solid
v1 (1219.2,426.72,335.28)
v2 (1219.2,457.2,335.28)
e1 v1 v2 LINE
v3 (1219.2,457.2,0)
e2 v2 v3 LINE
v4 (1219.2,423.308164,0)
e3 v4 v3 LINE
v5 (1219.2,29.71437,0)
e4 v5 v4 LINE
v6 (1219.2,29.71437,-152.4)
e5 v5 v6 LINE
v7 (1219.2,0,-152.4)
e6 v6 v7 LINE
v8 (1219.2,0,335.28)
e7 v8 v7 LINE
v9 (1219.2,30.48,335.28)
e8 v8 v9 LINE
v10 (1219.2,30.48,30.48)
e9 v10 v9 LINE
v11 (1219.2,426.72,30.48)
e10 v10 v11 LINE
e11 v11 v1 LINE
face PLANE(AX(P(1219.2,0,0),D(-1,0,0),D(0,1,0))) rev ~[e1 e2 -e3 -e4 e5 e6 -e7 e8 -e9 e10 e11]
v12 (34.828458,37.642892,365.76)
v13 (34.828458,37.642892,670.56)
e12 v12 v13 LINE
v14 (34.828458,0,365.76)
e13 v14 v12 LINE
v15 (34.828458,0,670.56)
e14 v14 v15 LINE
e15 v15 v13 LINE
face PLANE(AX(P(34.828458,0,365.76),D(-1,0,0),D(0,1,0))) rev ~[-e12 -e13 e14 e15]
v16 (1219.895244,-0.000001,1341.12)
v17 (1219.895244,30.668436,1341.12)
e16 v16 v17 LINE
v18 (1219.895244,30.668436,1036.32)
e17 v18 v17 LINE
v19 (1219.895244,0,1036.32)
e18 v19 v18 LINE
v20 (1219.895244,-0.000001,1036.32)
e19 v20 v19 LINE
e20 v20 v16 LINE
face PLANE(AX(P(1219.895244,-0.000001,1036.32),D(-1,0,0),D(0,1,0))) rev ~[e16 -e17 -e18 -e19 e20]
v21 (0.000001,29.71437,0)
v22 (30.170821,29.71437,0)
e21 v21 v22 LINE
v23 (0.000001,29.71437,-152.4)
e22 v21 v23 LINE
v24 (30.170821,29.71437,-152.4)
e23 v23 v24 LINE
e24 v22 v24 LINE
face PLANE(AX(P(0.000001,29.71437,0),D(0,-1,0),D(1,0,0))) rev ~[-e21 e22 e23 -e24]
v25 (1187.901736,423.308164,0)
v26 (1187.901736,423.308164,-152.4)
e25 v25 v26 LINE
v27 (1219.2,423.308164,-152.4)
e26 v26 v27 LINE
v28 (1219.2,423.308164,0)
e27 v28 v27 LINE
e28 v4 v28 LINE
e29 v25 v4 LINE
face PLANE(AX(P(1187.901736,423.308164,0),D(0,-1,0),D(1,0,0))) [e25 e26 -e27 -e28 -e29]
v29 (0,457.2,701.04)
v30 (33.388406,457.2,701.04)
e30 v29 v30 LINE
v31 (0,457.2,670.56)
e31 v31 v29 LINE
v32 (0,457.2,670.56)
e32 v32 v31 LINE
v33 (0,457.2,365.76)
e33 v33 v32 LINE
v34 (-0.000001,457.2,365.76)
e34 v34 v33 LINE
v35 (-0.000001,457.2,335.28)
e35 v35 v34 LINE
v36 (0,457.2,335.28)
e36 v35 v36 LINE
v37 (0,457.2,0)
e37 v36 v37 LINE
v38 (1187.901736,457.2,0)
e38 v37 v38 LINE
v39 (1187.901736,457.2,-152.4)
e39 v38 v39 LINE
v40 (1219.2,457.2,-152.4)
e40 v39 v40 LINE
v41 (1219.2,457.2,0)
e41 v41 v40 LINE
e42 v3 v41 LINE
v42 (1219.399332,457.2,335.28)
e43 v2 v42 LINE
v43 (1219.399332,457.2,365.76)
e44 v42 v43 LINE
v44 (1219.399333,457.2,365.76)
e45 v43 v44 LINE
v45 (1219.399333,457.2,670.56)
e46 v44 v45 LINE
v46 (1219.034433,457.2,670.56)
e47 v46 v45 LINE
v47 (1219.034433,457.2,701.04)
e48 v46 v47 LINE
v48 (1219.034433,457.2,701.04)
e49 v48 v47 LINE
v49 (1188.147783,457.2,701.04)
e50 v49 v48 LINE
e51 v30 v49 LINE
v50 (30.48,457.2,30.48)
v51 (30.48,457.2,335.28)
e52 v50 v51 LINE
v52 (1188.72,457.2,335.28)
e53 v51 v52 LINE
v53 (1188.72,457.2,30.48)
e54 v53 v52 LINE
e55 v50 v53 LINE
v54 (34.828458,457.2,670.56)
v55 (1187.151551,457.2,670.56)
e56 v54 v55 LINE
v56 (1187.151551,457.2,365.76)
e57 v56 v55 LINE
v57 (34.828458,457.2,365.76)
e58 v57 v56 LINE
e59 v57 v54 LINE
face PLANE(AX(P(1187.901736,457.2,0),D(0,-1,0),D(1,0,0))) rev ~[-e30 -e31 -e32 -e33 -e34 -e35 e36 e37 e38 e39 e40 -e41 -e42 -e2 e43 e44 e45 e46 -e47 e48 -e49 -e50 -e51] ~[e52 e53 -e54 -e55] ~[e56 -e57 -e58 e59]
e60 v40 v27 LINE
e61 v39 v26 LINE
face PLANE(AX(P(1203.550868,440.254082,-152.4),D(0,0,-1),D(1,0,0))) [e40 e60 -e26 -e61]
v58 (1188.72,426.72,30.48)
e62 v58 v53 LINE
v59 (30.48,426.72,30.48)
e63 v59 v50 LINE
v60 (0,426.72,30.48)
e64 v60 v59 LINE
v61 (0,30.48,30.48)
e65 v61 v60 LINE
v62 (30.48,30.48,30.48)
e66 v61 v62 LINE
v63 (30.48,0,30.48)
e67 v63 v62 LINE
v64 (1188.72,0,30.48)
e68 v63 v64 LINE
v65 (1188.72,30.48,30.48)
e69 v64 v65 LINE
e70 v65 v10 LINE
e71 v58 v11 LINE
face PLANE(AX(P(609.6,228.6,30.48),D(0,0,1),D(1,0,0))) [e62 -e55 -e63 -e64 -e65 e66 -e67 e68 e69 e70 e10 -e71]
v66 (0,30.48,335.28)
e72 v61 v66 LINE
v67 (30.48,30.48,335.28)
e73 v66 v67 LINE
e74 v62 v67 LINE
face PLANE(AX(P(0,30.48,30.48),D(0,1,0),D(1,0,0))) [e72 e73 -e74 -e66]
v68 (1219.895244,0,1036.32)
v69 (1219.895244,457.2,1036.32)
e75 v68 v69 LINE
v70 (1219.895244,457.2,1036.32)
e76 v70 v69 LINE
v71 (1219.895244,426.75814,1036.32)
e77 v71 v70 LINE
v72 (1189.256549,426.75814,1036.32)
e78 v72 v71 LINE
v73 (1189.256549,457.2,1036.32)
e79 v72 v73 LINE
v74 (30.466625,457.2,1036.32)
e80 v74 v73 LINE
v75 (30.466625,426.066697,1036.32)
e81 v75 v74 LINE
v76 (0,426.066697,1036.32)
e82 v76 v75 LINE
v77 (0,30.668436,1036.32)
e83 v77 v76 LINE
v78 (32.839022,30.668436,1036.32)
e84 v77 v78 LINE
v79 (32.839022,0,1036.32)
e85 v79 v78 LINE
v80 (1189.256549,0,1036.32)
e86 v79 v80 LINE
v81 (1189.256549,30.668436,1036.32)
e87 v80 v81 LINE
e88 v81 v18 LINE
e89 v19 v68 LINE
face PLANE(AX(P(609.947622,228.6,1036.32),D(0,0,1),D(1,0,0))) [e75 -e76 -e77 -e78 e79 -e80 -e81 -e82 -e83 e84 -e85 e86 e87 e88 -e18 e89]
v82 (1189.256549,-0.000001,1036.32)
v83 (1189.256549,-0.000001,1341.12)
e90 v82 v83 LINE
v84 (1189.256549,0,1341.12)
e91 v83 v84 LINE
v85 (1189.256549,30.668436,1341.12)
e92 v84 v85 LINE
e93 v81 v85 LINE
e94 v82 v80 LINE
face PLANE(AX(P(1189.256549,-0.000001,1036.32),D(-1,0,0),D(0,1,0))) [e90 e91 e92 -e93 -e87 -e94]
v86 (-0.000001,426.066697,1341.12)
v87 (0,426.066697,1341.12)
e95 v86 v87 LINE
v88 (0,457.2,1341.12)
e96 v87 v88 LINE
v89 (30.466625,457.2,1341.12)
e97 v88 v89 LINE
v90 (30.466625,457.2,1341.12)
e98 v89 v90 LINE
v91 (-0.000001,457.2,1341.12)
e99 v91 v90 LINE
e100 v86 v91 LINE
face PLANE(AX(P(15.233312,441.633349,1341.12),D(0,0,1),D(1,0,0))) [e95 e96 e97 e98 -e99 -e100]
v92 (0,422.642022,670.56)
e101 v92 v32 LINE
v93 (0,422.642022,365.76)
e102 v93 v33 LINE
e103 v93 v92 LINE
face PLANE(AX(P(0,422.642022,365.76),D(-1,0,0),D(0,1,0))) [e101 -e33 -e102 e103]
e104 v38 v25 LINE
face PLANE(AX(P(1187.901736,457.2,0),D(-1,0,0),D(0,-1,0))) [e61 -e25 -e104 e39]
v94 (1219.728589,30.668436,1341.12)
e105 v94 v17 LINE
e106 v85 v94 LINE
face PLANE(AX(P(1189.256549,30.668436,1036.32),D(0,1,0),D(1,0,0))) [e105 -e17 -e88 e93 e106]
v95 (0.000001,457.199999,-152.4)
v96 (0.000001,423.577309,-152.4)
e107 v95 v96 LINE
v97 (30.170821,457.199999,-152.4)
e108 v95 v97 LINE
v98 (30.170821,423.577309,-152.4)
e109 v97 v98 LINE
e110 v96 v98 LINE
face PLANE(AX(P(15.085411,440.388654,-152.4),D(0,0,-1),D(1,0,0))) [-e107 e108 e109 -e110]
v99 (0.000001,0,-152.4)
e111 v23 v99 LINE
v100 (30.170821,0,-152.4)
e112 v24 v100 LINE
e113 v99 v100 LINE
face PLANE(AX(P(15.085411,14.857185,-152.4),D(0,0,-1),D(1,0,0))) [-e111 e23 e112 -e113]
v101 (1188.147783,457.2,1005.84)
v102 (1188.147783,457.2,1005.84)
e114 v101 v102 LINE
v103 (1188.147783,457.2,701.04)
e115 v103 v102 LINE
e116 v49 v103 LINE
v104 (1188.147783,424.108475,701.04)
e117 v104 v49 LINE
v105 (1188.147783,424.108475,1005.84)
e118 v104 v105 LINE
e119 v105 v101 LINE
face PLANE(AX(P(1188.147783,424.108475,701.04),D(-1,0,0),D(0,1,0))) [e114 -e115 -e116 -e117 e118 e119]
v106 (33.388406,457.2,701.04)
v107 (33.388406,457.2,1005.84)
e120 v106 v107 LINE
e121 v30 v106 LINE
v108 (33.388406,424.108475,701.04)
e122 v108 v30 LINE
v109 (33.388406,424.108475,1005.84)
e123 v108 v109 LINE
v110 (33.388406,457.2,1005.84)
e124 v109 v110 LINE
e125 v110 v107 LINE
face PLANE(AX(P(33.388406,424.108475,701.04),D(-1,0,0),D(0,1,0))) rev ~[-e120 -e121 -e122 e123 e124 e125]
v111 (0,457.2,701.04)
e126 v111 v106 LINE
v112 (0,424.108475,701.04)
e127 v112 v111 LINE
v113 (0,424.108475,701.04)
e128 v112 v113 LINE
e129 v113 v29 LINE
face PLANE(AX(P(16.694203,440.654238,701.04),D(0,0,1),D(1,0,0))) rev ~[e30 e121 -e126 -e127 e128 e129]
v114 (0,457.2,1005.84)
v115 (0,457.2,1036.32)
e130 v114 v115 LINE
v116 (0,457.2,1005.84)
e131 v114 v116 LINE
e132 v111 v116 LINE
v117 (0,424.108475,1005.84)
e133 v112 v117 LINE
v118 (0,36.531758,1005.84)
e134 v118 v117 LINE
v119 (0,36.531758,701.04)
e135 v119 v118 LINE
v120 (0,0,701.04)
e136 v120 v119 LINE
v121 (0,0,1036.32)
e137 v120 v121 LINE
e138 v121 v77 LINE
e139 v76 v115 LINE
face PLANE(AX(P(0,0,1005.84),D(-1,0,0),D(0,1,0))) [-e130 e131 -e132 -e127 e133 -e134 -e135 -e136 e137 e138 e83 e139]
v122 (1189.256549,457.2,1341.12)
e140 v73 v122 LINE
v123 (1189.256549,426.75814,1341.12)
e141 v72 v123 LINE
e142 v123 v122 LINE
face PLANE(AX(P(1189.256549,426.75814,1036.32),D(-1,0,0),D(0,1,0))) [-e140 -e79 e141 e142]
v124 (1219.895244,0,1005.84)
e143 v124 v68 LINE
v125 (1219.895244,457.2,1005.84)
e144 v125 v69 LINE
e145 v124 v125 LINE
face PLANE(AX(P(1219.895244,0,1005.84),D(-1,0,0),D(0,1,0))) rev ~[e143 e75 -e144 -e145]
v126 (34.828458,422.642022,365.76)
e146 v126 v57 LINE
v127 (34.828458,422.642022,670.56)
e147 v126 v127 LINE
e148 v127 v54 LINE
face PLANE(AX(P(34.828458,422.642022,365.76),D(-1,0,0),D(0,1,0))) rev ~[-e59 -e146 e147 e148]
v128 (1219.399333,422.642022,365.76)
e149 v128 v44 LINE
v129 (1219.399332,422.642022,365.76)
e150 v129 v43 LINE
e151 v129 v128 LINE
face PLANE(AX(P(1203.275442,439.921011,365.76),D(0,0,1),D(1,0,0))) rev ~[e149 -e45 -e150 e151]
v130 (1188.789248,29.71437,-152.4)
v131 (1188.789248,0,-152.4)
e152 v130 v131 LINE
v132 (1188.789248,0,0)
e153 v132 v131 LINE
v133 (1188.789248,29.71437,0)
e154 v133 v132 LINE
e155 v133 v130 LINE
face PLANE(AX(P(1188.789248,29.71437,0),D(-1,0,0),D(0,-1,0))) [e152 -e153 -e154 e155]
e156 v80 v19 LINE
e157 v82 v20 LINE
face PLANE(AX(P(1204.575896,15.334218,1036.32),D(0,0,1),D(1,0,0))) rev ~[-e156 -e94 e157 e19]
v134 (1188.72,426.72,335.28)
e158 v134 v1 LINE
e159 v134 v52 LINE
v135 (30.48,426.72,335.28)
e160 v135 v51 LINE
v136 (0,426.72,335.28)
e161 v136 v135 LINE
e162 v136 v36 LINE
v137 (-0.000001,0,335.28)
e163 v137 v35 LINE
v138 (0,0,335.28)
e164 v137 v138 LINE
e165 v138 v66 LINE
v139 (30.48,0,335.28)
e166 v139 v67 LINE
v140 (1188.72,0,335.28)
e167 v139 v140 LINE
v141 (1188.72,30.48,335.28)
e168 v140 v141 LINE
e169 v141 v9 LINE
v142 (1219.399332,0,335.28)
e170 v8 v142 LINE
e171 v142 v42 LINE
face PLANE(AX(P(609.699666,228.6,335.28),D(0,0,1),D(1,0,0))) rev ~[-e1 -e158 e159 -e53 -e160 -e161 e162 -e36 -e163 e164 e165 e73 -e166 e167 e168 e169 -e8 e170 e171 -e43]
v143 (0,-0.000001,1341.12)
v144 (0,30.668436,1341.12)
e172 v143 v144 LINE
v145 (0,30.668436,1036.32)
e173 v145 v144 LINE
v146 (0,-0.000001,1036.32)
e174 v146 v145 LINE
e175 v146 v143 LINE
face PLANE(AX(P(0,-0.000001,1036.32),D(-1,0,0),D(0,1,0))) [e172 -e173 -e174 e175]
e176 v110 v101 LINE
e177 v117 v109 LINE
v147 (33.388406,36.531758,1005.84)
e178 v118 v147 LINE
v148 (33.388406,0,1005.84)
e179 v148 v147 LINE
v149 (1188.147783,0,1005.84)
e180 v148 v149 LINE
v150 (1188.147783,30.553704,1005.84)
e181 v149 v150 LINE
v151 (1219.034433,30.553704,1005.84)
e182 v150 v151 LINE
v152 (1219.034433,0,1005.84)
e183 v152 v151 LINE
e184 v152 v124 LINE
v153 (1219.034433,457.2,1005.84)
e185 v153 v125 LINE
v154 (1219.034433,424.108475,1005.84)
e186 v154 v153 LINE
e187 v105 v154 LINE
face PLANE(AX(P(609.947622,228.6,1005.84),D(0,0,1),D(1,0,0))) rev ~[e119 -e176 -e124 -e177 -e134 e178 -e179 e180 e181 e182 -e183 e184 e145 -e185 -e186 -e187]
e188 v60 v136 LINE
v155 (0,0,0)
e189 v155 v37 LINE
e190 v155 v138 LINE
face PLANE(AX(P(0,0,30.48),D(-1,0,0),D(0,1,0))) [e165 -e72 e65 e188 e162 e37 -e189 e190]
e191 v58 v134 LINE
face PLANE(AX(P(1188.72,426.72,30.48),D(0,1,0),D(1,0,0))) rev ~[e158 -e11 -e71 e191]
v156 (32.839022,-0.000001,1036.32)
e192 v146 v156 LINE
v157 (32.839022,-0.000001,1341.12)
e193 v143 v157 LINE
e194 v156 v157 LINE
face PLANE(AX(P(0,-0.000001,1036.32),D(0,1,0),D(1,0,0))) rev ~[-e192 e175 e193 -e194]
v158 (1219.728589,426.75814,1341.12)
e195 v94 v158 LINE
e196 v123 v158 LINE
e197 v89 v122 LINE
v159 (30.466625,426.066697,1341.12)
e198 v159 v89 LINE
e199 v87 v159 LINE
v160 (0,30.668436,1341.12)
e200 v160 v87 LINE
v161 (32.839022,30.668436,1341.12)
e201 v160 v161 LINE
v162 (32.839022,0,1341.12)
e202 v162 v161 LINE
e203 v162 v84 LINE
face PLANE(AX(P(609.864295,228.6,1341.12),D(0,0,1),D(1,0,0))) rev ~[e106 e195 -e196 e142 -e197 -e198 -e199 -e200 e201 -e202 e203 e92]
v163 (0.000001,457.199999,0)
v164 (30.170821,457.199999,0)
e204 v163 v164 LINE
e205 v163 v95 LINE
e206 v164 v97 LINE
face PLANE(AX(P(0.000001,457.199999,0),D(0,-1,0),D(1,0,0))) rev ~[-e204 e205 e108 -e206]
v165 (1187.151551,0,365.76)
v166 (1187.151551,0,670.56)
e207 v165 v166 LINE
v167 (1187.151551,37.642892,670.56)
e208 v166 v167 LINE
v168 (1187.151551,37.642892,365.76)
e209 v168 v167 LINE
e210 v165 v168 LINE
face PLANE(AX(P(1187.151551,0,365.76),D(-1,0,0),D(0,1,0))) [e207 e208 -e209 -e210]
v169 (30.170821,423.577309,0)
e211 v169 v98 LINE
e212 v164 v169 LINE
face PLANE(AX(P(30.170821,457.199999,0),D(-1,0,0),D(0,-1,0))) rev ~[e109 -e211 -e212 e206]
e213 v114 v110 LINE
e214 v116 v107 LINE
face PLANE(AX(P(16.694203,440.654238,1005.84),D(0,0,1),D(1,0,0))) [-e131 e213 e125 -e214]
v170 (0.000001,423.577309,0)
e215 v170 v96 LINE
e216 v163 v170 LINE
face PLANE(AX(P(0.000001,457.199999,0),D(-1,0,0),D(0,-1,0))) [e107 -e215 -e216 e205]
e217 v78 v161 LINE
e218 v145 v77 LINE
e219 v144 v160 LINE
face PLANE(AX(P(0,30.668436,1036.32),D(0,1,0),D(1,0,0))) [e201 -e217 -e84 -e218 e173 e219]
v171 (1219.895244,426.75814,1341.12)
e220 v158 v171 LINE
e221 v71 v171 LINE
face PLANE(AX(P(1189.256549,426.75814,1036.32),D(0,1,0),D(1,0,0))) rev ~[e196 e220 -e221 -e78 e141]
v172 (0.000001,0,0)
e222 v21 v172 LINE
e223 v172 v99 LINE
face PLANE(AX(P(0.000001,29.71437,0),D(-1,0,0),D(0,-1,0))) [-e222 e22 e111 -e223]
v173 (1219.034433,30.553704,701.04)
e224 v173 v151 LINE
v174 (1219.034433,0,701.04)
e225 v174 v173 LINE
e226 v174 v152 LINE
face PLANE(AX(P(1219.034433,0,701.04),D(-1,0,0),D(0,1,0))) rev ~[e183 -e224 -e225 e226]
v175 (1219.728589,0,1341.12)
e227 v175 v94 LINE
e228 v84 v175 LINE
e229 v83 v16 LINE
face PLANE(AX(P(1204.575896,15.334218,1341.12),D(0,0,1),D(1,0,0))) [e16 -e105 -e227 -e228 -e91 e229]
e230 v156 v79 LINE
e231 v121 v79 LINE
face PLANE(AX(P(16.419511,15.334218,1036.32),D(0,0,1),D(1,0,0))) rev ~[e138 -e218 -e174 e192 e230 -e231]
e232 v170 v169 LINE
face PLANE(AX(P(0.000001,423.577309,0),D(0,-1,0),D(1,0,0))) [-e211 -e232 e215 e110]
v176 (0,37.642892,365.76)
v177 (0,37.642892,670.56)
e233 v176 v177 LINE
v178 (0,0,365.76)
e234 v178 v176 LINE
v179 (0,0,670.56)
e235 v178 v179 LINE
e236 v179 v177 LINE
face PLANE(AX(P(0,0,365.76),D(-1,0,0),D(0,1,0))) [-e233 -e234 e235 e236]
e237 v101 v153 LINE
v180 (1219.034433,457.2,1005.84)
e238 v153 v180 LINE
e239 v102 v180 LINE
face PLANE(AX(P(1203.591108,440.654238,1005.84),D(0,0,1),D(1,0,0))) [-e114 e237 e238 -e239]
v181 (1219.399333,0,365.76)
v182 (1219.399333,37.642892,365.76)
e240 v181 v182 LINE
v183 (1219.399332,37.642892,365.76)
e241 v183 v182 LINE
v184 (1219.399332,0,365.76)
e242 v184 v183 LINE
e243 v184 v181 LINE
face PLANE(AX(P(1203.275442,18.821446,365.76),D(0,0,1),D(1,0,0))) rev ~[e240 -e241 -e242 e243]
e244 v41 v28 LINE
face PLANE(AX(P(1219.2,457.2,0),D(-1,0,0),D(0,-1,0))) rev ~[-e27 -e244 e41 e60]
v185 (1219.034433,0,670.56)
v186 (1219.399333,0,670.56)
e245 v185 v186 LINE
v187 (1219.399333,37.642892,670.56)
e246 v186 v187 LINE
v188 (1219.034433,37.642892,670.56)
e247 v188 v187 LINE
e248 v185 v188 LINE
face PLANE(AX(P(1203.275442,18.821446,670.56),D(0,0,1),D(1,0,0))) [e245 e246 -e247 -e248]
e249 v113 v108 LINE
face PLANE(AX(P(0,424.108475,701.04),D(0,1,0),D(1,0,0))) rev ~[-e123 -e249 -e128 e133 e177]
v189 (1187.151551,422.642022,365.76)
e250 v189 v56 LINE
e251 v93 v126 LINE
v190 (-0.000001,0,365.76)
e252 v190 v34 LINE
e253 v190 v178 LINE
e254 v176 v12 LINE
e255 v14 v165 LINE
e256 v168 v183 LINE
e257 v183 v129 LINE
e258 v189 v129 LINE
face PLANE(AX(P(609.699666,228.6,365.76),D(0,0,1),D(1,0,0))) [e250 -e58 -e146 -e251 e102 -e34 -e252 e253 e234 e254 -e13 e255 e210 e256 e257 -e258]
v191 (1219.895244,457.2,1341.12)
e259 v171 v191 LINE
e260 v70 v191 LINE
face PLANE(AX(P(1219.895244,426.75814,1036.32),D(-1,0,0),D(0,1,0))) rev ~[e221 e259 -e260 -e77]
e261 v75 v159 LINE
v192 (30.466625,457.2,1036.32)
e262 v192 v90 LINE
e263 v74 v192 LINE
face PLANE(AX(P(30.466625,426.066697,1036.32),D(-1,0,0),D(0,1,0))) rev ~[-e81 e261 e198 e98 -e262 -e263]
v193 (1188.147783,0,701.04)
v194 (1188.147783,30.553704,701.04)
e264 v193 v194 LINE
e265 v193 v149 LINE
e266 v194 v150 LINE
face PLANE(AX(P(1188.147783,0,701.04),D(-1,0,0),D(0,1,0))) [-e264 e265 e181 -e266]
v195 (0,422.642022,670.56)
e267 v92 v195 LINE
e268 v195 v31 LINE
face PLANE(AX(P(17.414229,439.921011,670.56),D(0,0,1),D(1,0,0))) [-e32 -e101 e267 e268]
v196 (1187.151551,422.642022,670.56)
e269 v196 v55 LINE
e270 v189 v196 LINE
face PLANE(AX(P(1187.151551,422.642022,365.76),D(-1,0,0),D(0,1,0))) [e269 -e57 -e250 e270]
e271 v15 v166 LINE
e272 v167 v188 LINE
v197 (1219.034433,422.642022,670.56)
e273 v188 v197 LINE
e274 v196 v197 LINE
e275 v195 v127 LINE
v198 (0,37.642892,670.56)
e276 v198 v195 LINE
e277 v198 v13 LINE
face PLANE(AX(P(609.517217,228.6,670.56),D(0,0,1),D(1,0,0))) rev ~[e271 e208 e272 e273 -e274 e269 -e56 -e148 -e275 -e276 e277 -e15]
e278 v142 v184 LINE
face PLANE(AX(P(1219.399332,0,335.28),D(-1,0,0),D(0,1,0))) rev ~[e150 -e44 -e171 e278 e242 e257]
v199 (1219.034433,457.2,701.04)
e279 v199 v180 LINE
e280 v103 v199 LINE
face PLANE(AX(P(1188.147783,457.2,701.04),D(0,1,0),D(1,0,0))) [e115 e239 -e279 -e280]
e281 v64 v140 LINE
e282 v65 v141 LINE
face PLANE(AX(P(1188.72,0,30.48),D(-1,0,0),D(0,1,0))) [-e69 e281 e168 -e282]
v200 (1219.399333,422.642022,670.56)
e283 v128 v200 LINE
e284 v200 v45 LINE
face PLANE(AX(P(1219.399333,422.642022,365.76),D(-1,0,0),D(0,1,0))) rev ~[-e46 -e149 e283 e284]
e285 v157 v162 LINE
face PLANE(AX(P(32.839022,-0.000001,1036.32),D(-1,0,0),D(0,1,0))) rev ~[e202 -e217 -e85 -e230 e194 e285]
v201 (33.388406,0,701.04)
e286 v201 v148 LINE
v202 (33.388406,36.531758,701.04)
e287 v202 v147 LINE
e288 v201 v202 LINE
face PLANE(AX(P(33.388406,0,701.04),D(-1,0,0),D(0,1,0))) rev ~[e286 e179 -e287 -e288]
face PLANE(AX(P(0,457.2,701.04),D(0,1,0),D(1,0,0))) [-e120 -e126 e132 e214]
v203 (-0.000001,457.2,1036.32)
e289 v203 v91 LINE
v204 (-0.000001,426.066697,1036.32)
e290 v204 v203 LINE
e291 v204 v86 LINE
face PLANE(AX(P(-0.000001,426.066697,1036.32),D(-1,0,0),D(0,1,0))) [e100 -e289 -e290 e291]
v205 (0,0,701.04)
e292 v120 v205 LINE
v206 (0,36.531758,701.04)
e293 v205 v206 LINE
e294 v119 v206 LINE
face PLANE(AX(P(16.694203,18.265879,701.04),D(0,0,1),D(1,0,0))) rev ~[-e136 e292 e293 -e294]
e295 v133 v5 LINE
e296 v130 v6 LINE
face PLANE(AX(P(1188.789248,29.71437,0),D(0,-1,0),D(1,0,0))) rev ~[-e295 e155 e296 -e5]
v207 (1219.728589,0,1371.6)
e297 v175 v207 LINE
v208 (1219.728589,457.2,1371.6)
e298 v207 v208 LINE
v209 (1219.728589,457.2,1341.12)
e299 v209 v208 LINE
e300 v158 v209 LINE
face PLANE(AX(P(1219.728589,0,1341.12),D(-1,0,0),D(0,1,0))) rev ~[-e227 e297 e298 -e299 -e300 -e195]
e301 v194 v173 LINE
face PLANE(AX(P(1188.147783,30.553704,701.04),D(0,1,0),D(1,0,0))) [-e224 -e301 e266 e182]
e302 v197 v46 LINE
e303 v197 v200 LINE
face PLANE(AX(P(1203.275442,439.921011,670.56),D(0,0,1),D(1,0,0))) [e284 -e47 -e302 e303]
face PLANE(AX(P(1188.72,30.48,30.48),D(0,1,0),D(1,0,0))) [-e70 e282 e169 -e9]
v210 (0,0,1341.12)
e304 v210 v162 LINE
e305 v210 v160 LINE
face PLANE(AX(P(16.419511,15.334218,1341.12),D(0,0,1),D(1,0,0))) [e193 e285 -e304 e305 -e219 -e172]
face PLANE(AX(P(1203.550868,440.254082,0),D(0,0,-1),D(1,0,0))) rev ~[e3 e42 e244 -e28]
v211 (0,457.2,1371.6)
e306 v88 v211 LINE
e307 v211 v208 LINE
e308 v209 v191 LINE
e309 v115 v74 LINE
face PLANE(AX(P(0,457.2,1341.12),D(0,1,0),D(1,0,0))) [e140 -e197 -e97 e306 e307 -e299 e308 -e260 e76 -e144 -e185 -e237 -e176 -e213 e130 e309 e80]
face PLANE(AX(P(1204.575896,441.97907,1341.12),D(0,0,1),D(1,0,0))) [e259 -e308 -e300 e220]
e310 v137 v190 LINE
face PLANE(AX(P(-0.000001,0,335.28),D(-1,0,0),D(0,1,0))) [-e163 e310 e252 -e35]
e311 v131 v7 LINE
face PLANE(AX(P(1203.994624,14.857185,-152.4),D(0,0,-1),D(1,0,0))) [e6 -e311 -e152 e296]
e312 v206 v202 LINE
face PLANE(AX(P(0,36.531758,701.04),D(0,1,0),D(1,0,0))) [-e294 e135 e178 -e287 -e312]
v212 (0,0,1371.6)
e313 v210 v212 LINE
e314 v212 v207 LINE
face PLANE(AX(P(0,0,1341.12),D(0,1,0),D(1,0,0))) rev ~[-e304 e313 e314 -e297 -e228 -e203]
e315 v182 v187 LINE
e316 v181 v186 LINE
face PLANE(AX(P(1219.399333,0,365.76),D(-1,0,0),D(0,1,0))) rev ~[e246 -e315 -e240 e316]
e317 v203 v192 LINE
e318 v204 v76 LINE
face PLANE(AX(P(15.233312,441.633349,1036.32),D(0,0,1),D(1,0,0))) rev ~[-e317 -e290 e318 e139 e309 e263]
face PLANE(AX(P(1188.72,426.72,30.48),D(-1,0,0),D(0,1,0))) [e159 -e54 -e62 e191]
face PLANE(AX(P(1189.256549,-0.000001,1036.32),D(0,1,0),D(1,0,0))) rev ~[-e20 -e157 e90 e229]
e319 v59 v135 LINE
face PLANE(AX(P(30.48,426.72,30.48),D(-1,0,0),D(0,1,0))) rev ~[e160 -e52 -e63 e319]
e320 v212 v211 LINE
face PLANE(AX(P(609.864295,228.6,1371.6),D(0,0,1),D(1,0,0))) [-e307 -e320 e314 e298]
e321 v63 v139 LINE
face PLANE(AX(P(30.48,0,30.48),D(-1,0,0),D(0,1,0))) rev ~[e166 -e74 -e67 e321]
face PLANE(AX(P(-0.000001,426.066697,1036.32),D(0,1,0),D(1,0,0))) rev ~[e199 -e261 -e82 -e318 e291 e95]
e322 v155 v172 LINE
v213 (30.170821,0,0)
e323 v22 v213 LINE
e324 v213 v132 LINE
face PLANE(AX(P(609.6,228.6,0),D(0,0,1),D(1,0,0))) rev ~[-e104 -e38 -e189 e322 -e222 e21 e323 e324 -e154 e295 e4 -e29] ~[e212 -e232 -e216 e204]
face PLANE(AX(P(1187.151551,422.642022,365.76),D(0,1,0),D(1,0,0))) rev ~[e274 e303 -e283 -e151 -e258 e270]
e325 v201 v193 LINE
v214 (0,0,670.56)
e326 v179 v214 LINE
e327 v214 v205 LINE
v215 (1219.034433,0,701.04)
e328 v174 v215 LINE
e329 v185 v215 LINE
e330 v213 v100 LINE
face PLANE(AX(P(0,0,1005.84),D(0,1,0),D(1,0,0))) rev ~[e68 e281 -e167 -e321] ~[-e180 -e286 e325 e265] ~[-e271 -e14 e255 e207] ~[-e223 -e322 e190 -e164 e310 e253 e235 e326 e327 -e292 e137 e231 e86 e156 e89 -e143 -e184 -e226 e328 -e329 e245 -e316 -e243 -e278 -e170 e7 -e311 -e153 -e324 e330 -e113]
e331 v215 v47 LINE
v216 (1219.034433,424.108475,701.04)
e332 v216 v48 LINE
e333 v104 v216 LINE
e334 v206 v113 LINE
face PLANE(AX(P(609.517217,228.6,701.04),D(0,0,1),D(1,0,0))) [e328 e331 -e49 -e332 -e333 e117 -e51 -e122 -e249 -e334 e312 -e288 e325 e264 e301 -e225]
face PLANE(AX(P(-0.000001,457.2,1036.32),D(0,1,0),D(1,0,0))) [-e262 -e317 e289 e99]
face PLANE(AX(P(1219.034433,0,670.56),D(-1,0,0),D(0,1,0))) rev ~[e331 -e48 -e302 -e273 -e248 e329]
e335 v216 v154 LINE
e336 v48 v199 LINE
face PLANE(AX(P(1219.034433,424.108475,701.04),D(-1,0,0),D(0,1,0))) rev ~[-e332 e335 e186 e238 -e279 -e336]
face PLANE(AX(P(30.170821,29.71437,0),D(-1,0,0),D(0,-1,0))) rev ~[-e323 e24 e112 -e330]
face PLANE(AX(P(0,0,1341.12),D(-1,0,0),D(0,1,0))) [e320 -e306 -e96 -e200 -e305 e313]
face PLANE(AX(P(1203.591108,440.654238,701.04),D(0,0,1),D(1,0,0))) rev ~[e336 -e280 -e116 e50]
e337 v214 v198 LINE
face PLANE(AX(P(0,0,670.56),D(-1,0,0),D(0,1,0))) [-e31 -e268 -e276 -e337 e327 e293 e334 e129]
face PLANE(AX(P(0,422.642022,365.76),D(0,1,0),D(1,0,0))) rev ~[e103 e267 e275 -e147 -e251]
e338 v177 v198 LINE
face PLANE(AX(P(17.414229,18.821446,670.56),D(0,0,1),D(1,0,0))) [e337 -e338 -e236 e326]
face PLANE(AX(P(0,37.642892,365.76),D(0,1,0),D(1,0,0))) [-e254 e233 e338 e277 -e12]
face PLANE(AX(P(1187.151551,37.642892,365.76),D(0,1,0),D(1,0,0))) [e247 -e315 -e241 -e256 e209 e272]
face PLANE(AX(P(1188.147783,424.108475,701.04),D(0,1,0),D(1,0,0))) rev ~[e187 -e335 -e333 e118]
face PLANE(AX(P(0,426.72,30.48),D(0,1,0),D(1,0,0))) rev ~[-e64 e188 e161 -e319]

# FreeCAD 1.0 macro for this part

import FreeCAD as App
import Part
import Sketcher
from FreeCAD import Vector
Q = App.Units.Quantity

doc = App.newDocument("Part")
body = doc.addObject("PartDesign::Body", "Body")

# Sketch on XY plane
sketch1 = body.newObject("Sketcher::SketchObject", "Sketch")
sketch1.AttachmentSupport = (doc.getObject("XY_Plane"), [""])
sketch1.MapMode = "FlatFace"
sketch1.addGeometry([
    Part.LineSegment(Vector(0, 457, 0), Vector(0, 0, 0)),
    Part.LineSegment(Vector(0, 0, 0), Vector(1219, 0, 0)),
    Part.LineSegment(Vector(1219, 0, 0), Vector(1219, 457, 0)),
    Part.LineSegment(Vector(1219, 457, 0), Vector(0, 457, 0)),
], False)
sketch1.addConstraint([
    Sketcher.Constraint("Coincident", 0, 2, 1, 1),
    Sketcher.Constraint("Coincident", 1, 2, 2, 1),
    Sketcher.Constraint("Coincident", 2, 2, 3, 1),
    Sketcher.Constraint("Coincident", 3, 2, 0, 1),
    Sketcher.Constraint("Vertical", 0),
    Sketcher.Constraint("Horizontal", 1),
    Sketcher.Constraint("Vertical", 2),
    Sketcher.Constraint("Horizontal", 3),
    Sketcher.Constraint("Coincident", 0, 2, -1, 1),
    Sketcher.Constraint("DistanceX", 1, 1, 1, 2, Q("48 in")),
    Sketcher.Constraint("DistanceY", 0, 2, 0, 1, Q("18 in")),
])
pad1 = body.newObject("PartDesign::Pad", "Pad")
pad1.Profile = sketch1
pad1.Length = Q("1.2 in")

# Sketch on XY plane
sketch2 = body.newObject("Sketcher::SketchObject", "Sketch001")
sketch2.AttachmentSupport = (doc.getObject("XY_Plane"), [""])
sketch2.MapMode = "FlatFace"
sketch2.AttachmentOffset = App.Placement(Vector(0, 0, 1.2 * 25.4), App.Rotation())
sketch2.addGeometry([
    Part.LineSegment(Vector(0, 30, 0), Vector(0, 0, 0)),  # 0
    Part.LineSegment(Vector(0, 0, 0), Vector(30, 0, 0)),  # 1
    Part.LineSegment(Vector(30, 0, 0), Vector(30, 30, 0)),  # 2
    Part.LineSegment(Vector(30, 30, 0), Vector(0, 30, 0)),  # 3
    Part.LineSegment(Vector(0, 457, 0), Vector(0, 427, 0)),  # 4
    Part.LineSegment(Vector(0, 427, 0), Vector(30, 427, 0)),  # 5
    Part.LineSegment(Vector(30, 427, 0), Vector(30, 457, 0)),  # 6
    Part.LineSegment(Vector(30, 457, 0), Vector(0, 457, 0)),  # 7
    Part.LineSegment(Vector(1189, 457, 0), Vector(1189, 427, 0)),  # 8
    Part.LineSegment(Vector(1189, 427, 0), Vector(1219, 427, 0)),  # 9
    Part.LineSegment(Vector(1219, 427, 0), Vector(1219, 457, 0)),  # 10
    Part.LineSegment(Vector(1219, 457, 0), Vector(1189, 457, 0)),  # 11
    Part.LineSegment(Vector(1189, 30, 0), Vector(1189, 0, 0)),  # 12
    Part.LineSegment(Vector(1189, 0, 0), Vector(1219, 0, 0)),  # 13
    Part.LineSegment(Vector(1219, 0, 0), Vector(1219, 30, 0)),  # 14
    Part.LineSegment(Vector(1219, 30, 0), Vector(1189, 30, 0)),  # 15
], False)
sketch2.addConstraint([
    Sketcher.Constraint("Coincident", 0, 2, 1, 1),
    Sketcher.Constraint("Coincident", 1, 2, 2, 1),
    Sketcher.Constraint("Coincident", 2, 2, 3, 1),
    Sketcher.Constraint("Coincident", 3, 2, 0, 1),
    Sketcher.Constraint("Coincident", 4, 2, 5, 1),
    Sketcher.Constraint("Coincident", 5, 2, 6, 1),
    Sketcher.Constraint("Coincident", 6, 2, 7, 1),
    Sketcher.Constraint("Coincident", 7, 2, 4, 1),
    Sketcher.Constraint("Coincident", 8, 2, 9, 1),
    Sketcher.Constraint("Coincident", 9, 2, 10, 1),
    Sketcher.Constraint("Coincident", 10, 2, 11, 1),
    Sketcher.Constraint("Coincident", 11, 2, 8, 1),
    Sketcher.Constraint("Coincident", 12, 2, 13, 1),
    Sketcher.Constraint("Coincident", 13, 2, 14, 1),
    Sketcher.Constraint("Coincident", 14, 2, 15, 1),
    Sketcher.Constraint("Coincident", 15, 2, 12, 1),
    Sketcher.Constraint("Vertical", 0),
    Sketcher.Constraint("Horizontal", 1),
    Sketcher.Constraint("Vertical", 2),
    Sketcher.Constraint("Horizontal", 3),
    Sketcher.Constraint("Vertical", 4),
    Sketcher.Constraint("Horizontal", 5),
    Sketcher.Constraint("Vertical", 6),
    Sketcher.Constraint("Horizontal", 7),
    Sketcher.Constraint("Vertical", 8),
    Sketcher.Constraint("Horizontal", 9),
    Sketcher.Constraint("Vertical", 10),
    Sketcher.Constraint("Horizontal", 11),
    Sketcher.Constraint("Vertical", 12),
    Sketcher.Constraint("Horizontal", 13),
    Sketcher.Constraint("Vertical", 14),
    Sketcher.Constraint("Horizontal", 15),
    Sketcher.Constraint("Coincident", 0, 2, -1, 1),
    Sketcher.Constraint("PointOnObject", 4, 2, -2),
    Sketcher.Constraint("PointOnObject", 12, 2, -1),
    Sketcher.Constraint("Horizontal", 5, 2, 8, 2),
    Sketcher.Constraint("Horizontal", 7, 2, 10, 2),
    Sketcher.Constraint("Horizontal", 3, 2, 14, 2),
    Sketcher.Constraint("Vertical", 2, 2, 5, 2),
    Sketcher.Constraint("Vertical", 11, 2, 12, 2),
    Sketcher.Constraint("Vertical", 10, 2, 13, 2),
    Sketcher.Constraint("Equal", 7, 9),
    Sketcher.Constraint("Equal", 15, 0),
    Sketcher.Constraint("Equal", 2, 4),
    Sketcher.Constraint("DistanceX", 1, 1, 1, 2, Q("1.2 in")),
    Sketcher.Constraint("DistanceY", -1, 1, 6, 2, Q("18 in")),
    Sketcher.Constraint("DistanceX", -1, 1, 9, 2, Q("48 in")),
])
pad2 = body.newObject("PartDesign::Pad", "Pad001")
pad2.Profile = sketch2
pad2.Length = Q("12 in")

# Sketch on XY plane
sketch3 = body.newObject("Sketcher::SketchObject", "Sketch002")
sketch3.AttachmentSupport = (doc.getObject("XY_Plane"), [""])
sketch3.MapMode = "FlatFace"
sketch3.AttachmentOffset = App.Placement(Vector(0, 0, 13.2 * 25.4), App.Rotation())
sketch3.addGeometry([
    Part.LineSegment(Vector(0, 457, 0), Vector(0, 0, 0)),
    Part.LineSegment(Vector(0, 0, 0), Vector(1219, 0, 0)),
    Part.LineSegment(Vector(1219, 0, 0), Vector(1219, 457, 0)),
    Part.LineSegment(Vector(1219, 457, 0), Vector(0, 457, 0)),
], False)
sketch3.addConstraint([
    Sketcher.Constraint("Coincident", 0, 2, 1, 1),
    Sketcher.Constraint("Coincident", 1, 2, 2, 1),
    Sketcher.Constraint("Coincident", 2, 2, 3, 1),
    Sketcher.Constraint("Coincident", 3, 2, 0, 1),
    Sketcher.Constraint("Vertical", 0),
    Sketcher.Constraint("Horizontal", 1),
    Sketcher.Constraint("Vertical", 2),
    Sketcher.Constraint("Horizontal", 3),
    Sketcher.Constraint("Coincident", 0, 2, -1, 1),
    Sketcher.Constraint("DistanceY", 0, 2, 0, 1, Q("18 in")),
    Sketcher.Constraint("DistanceX", 1, 1, 1, 2, 1219.399333),
])
pad3 = body.newObject("PartDesign::Pad", "Pad002")
pad3.Profile = sketch3
pad3.Length = Q("1.2 in")

# Sketch on XY plane
sketch4 = body.newObject("Sketcher::SketchObject", "Sketch003")
sketch4.AttachmentSupport = (doc.getObject("XY_Plane"), [""])
sketch4.MapMode = "FlatFace"
sketch4.AttachmentOffset = App.Placement(Vector(0, 0, 14.4 * 25.4), App.Rotation())
sketch4.addGeometry([
    Part.LineSegment(Vector(0, 457, 0), Vector(0, 423, 0)),  # 0
    Part.LineSegment(Vector(0, 423, 0), Vector(35, 423, 0)),  # 1
    Part.LineSegment(Vector(35, 423, 0), Vector(35, 457, 0)),  # 2
    Part.LineSegment(Vector(35, 457, 0), Vector(0, 457, 0)),  # 3
    Part.LineSegment(Vector(0, 38, 0), Vector(0, 0, 0)),  # 4
    Part.LineSegment(Vector(0, 0, 0), Vector(35, 0, 0)),  # 5
    Part.LineSegment(Vector(35, 0, 0), Vector(35, 38, 0)),  # 6
    Part.LineSegment(Vector(35, 38, 0), Vector(0, 38, 0)),  # 7
    Part.LineSegment(Vector(1187, 38, 0), Vector(1187, 0, 0)),  # 8
    Part.LineSegment(Vector(1187, 0, 0), Vector(1219, 0, 0)),  # 9
    Part.LineSegment(Vector(1219, 0, 0), Vector(1219, 38, 0)),  # 10
    Part.LineSegment(Vector(1219, 38, 0), Vector(1187, 38, 0)),  # 11
    Part.LineSegment(Vector(1187, 457, 0), Vector(1187, 423, 0)),  # 12
    Part.LineSegment(Vector(1187, 423, 0), Vector(1219, 423, 0)),  # 13
    Part.LineSegment(Vector(1219, 423, 0), Vector(1219, 457, 0)),  # 14
    Part.LineSegment(Vector(1219, 457, 0), Vector(1187, 457, 0)),  # 15
], False)
sketch4.addConstraint([
    Sketcher.Constraint("Coincident", 0, 2, 1, 1),
    Sketcher.Constraint("Coincident", 1, 2, 2, 1),
    Sketcher.Constraint("Coincident", 2, 2, 3, 1),
    Sketcher.Constraint("Coincident", 3, 2, 0, 1),
    Sketcher.Constraint("Coincident", 4, 2, 5, 1),
    Sketcher.Constraint("Coincident", 5, 2, 6, 1),
    Sketcher.Constraint("Coincident", 6, 2, 7, 1),
    Sketcher.Constraint("Coincident", 7, 2, 4, 1),
    Sketcher.Constraint("Coincident", 8, 2, 9, 1),
    Sketcher.Constraint("Coincident", 9, 2, 10, 1),
    Sketcher.Constraint("Coincident", 10, 2, 11, 1),
    Sketcher.Constraint("Coincident", 11, 2, 8, 1),
    Sketcher.Constraint("Coincident", 12, 2, 13, 1),
    Sketcher.Constraint("Coincident", 13, 2, 14, 1),
    Sketcher.Constraint("Coincident", 14, 2, 15, 1),
    Sketcher.Constraint("Coincident", 15, 2, 12, 1),
    Sketcher.Constraint("Vertical", 0),
    Sketcher.Constraint("Horizontal", 1),
    Sketcher.Constraint("Vertical", 2),
    Sketcher.Constraint("Horizontal", 3),
    Sketcher.Constraint("Vertical", 4),
    Sketcher.Constraint("Horizontal", 5),
    Sketcher.Constraint("Vertical", 6),
    Sketcher.Constraint("Horizontal", 7),
    Sketcher.Constraint("Vertical", 8),
    Sketcher.Constraint("Horizontal", 9),
    Sketcher.Constraint("Vertical", 10),
    Sketcher.Constraint("Horizontal", 11),
    Sketcher.Constraint("Vertical", 12),
    Sketcher.Constraint("Horizontal", 13),
    Sketcher.Constraint("Vertical", 14),
    Sketcher.Constraint("Horizontal", 15),
    Sketcher.Constraint("Coincident", 4, 2, -1, 1),
    Sketcher.Constraint("PointOnObject", 0, 2, -2),
    Sketcher.Constraint("PointOnObject", 8, 2, -1),
    Sketcher.Constraint("Horizontal", 7, 2, 10, 2),
    Sketcher.Constraint("Horizontal", 1, 2, 12, 2),
    Sketcher.Constraint("Horizontal", 3, 2, 14, 2),
    Sketcher.Constraint("Vertical", 2, 2, 5, 2),
    Sketcher.Constraint("Vertical", 11, 2, 12, 2),
    Sketcher.Constraint("Vertical", 10, 2, 13, 2),
    Sketcher.Constraint("DistanceY", -1, 1, 2, 2, Q("18 in")),
    Sketcher.Constraint("DistanceX", 1, 1, 1, 2, 34.828458),
    Sketcher.Constraint("DistanceX", 9, 1, 9, 2, 32.247782),
    Sketcher.Constraint("DistanceY", 0, 2, 0, 1, 34.557978),
    Sketcher.Constraint("DistanceY", 4, 2, 4, 1, 37.642892),
    Sketcher.Constraint("DistanceX", -1, 1, 8, 2, 1187.151551),
])
pad4 = body.newObject("PartDesign::Pad", "Pad003")
pad4.Profile = sketch4
pad4.Length = Q("12 in")

# Sketch on XY plane
sketch5 = body.newObject("Sketcher::SketchObject", "Sketch004")
sketch5.AttachmentSupport = (doc.getObject("XY_Plane"), [""])
sketch5.MapMode = "FlatFace"
sketch5.AttachmentOffset = App.Placement(Vector(0, 0, 26.4 * 25.4), App.Rotation())
sketch5.addGeometry([
    Part.LineSegment(Vector(0, 457, 0), Vector(0, 0, 0)),
    Part.LineSegment(Vector(0, 0, 0), Vector(1219, 0, 0)),
    Part.LineSegment(Vector(1219, 0, 0), Vector(1219, 457, 0)),
    Part.LineSegment(Vector(1219, 457, 0), Vector(0, 457, 0)),
], False)
sketch5.addConstraint([
    Sketcher.Constraint("Coincident", 0, 2, 1, 1),
    Sketcher.Constraint("Coincident", 1, 2, 2, 1),
    Sketcher.Constraint("Coincident", 2, 2, 3, 1),
    Sketcher.Constraint("Coincident", 3, 2, 0, 1),
    Sketcher.Constraint("Vertical", 0),
    Sketcher.Constraint("Horizontal", 1),
    Sketcher.Constraint("Vertical", 2),
    Sketcher.Constraint("Horizontal", 3),
    Sketcher.Constraint("Coincident", 0, 2, -1, 1),
    Sketcher.Constraint("DistanceY", 0, 2, 0, 1, Q("18 in")),
    Sketcher.Constraint("DistanceX", 1, 1, 1, 2, 1219.034433),
])
pad5 = body.newObject("PartDesign::Pad", "Pad004")
pad5.Profile = sketch5
pad5.Length = Q("1.2 in")

# Sketch on XY plane
sketch6 = body.newObject("Sketcher::SketchObject", "Sketch005")
sketch6.AttachmentSupport = (doc.getObject("XY_Plane"), [""])
sketch6.MapMode = "FlatFace"
sketch6.AttachmentOffset = App.Placement(Vector(0, 0, 27.6 * 25.4), App.Rotation())
sketch6.addGeometry([
    Part.LineSegment(Vector(0, 457, 0), Vector(0, 424, 0)),  # 0
    Part.LineSegment(Vector(0, 424, 0), Vector(33, 424, 0)),  # 1
    Part.LineSegment(Vector(33, 424, 0), Vector(33, 457, 0)),  # 2
    Part.LineSegment(Vector(33, 457, 0), Vector(0, 457, 0)),  # 3
    Part.LineSegment(Vector(0, 37, 0), Vector(0, 0, 0)),  # 4
    Part.LineSegment(Vector(0, 0, 0), Vector(33, 0, 0)),  # 5
    Part.LineSegment(Vector(33, 0, 0), Vector(33, 37, 0)),  # 6
    Part.LineSegment(Vector(33, 37, 0), Vector(0, 37, 0)),  # 7
    Part.LineSegment(Vector(1188, 31, 0), Vector(1188, 0, 0)),  # 8
    Part.LineSegment(Vector(1188, 0, 0), Vector(1219, 0, 0)),  # 9
    Part.LineSegment(Vector(1219, 0, 0), Vector(1219, 31, 0)),  # 10
    Part.LineSegment(Vector(1219, 31, 0), Vector(1188, 31, 0)),  # 11
    Part.LineSegment(Vector(1188, 457, 0), Vector(1188, 424, 0)),  # 12
    Part.LineSegment(Vector(1188, 424, 0), Vector(1219, 424, 0)),  # 13
    Part.LineSegment(Vector(1219, 424, 0), Vector(1219, 457, 0)),  # 14
    Part.LineSegment(Vector(1219, 457, 0), Vector(1188, 457, 0)),  # 15
], False)
sketch6.addConstraint([
    Sketcher.Constraint("Coincident", 0, 2, 1, 1),
    Sketcher.Constraint("Coincident", 1, 2, 2, 1),
    Sketcher.Constraint("Coincident", 2, 2, 3, 1),
    Sketcher.Constraint("Coincident", 3, 2, 0, 1),
    Sketcher.Constraint("Coincident", 4, 2, 5, 1),
    Sketcher.Constraint("Coincident", 5, 2, 6, 1),
    Sketcher.Constraint("Coincident", 6, 2, 7, 1),
    Sketcher.Constraint("Coincident", 7, 2, 4, 1),
    Sketcher.Constraint("Coincident", 8, 2, 9, 1),
    Sketcher.Constraint("Coincident", 9, 2, 10, 1),
    Sketcher.Constraint("Coincident", 10, 2, 11, 1),
    Sketcher.Constraint("Coincident", 11, 2, 8, 1),
    Sketcher.Constraint("Coincident", 12, 2, 13, 1),
    Sketcher.Constraint("Coincident", 13, 2, 14, 1),
    Sketcher.Constraint("Coincident", 14, 2, 15, 1),
    Sketcher.Constraint("Coincident", 15, 2, 12, 1),
    Sketcher.Constraint("Vertical", 0),
    Sketcher.Constraint("Horizontal", 1),
    Sketcher.Constraint("Vertical", 2),
    Sketcher.Constraint("Horizontal", 3),
    Sketcher.Constraint("Vertical", 4),
    Sketcher.Constraint("Horizontal", 5),
    Sketcher.Constraint("Vertical", 6),
    Sketcher.Constraint("Horizontal", 7),
    Sketcher.Constraint("Vertical", 8),
    Sketcher.Constraint("Horizontal", 9),
    Sketcher.Constraint("Vertical", 10),
    Sketcher.Constraint("Horizontal", 11),
    Sketcher.Constraint("Vertical", 12),
    Sketcher.Constraint("Horizontal", 13),
    Sketcher.Constraint("Vertical", 14),
    Sketcher.Constraint("Horizontal", 15),
    Sketcher.Constraint("Coincident", 4, 2, -1, 1),
    Sketcher.Constraint("PointOnObject", 0, 2, -2),
    Sketcher.Constraint("PointOnObject", 8, 2, -1),
    Sketcher.Constraint("Horizontal", 1, 2, 12, 2),
    Sketcher.Constraint("Horizontal", 3, 2, 14, 2),
    Sketcher.Constraint("Vertical", 2, 2, 5, 2),
    Sketcher.Constraint("Vertical", 11, 2, 12, 2),
    Sketcher.Constraint("Vertical", 10, 2, 13, 2),
    Sketcher.Constraint("DistanceY", -1, 1, 2, 2, Q("18 in")),
    Sketcher.Constraint("DistanceX", 9, 1, 9, 2, 30.88665),
    Sketcher.Constraint("DistanceY", 4, 2, 4, 1, 36.531758),
    Sketcher.Constraint("DistanceX", 1, 1, 1, 2, 33.388406),
    Sketcher.Constraint("DistanceY", 0, 2, 0, 1, 33.091525),
    Sketcher.Constraint("DistanceY", 8, 2, 8, 1, 30.553704),
    Sketcher.Constraint("DistanceX", -1, 1, 8, 2, 1188.147783),
])
pad6 = body.newObject("PartDesign::Pad", "Pad005")
pad6.Profile = sketch6
pad6.Length = Q("12 in")

# Sketch on XY plane
sketch7 = body.newObject("Sketcher::SketchObject", "Sketch006")
sketch7.AttachmentSupport = (doc.getObject("XY_Plane"), [""])
sketch7.MapMode = "FlatFace"
sketch7.AttachmentOffset = App.Placement(Vector(0, 0, 39.6 * 25.4), App.Rotation())
sketch7.addGeometry([
    Part.LineSegment(Vector(0, 457, 0), Vector(0, 0, 0)),
    Part.LineSegment(Vector(0, 0, 0), Vector(1220, 0, 0)),
    Part.LineSegment(Vector(1220, 0, 0), Vector(1220, 457, 0)),
    Part.LineSegment(Vector(1220, 457, 0), Vector(0, 457, 0)),
], False)
sketch7.addConstraint([
    Sketcher.Constraint("Coincident", 0, 2, 1, 1),
    Sketcher.Constraint("Coincident", 1, 2, 2, 1),
    Sketcher.Constraint("Coincident", 2, 2, 3, 1),
    Sketcher.Constraint("Coincident", 3, 2, 0, 1),
    Sketcher.Constraint("Vertical", 0),
    Sketcher.Constraint("Horizontal", 1),
    Sketcher.Constraint("Vertical", 2),
    Sketcher.Constraint("Horizontal", 3),
    Sketcher.Constraint("Coincident", 0, 2, -1, 1),
    Sketcher.Constraint("DistanceY", 0, 2, 0, 1, Q("18 in")),
    Sketcher.Constraint("DistanceX", 1, 1, 1, 2, 1219.895244),
])
pad7 = body.newObject("PartDesign::Pad", "Pad006")
pad7.Profile = sketch7
pad7.Length = Q("1.2 in")

# Sketch on XY plane
sketch8 = body.newObject("Sketcher::SketchObject", "Sketch007")
sketch8.AttachmentSupport = (doc.getObject("XY_Plane"), [""])
sketch8.MapMode = "FlatFace"
sketch8.AttachmentOffset = App.Placement(Vector(0, 0, 40.8 * 25.4), App.Rotation())
sketch8.addGeometry([
    Part.LineSegment(Vector(0, 457, 0), Vector(0, 426, 0)),  # 0
    Part.LineSegment(Vector(0, 426, 0), Vector(30, 426, 0)),  # 1
    Part.LineSegment(Vector(30, 426, 0), Vector(30, 457, 0)),  # 2
    Part.LineSegment(Vector(30, 457, 0), Vector(0, 457, 0)),  # 3
    Part.LineSegment(Vector(0, 31, 0), Vector(0, 0, 0)),  # 4
    Part.LineSegment(Vector(0, 0, 0), Vector(33, 0, 0)),  # 5
    Part.LineSegment(Vector(33, 0, 0), Vector(33, 31, 0)),  # 6
    Part.LineSegment(Vector(33, 31, 0), Vector(0, 31, 0)),  # 7
    Part.LineSegment(Vector(1189, 31, 0), Vector(1189, 0, 0)),  # 8
    Part.LineSegment(Vector(1189, 0, 0), Vector(1220, 0, 0)),  # 9
    Part.LineSegment(Vector(1220, 0, 0), Vector(1220, 31, 0)),  # 10
    Part.LineSegment(Vector(1220, 31, 0), Vector(1189, 31, 0)),  # 11
    Part.LineSegment(Vector(1189, 457, 0), Vector(1189, 427, 0)),  # 12
    Part.LineSegment(Vector(1189, 427, 0), Vector(1220, 427, 0)),  # 13
    Part.LineSegment(Vector(1220, 427, 0), Vector(1220, 457, 0)),  # 14
    Part.LineSegment(Vector(1220, 457, 0), Vector(1189, 457, 0)),  # 15
], False)
sketch8.addConstraint([
    Sketcher.Constraint("Coincident", 0, 2, 1, 1),
    Sketcher.Constraint("Coincident", 1, 2, 2, 1),
    Sketcher.Constraint("Coincident", 2, 2, 3, 1),
    Sketcher.Constraint("Coincident", 3, 2, 0, 1),
    Sketcher.Constraint("Coincident", 4, 2, 5, 1),
    Sketcher.Constraint("Coincident", 5, 2, 6, 1),
    Sketcher.Constraint("Coincident", 6, 2, 7, 1),
    Sketcher.Constraint("Coincident", 7, 2, 4, 1),
    Sketcher.Constraint("Coincident", 8, 2, 9, 1),
    Sketcher.Constraint("Coincident", 9, 2, 10, 1),
    Sketcher.Constraint("Coincident", 10, 2, 11, 1),
    Sketcher.Constraint("Coincident", 11, 2, 8, 1),
    Sketcher.Constraint("Coincident", 12, 2, 13, 1),
    Sketcher.Constraint("Coincident", 13, 2, 14, 1),
    Sketcher.Constraint("Coincident", 14, 2, 15, 1),
    Sketcher.Constraint("Coincident", 15, 2, 12, 1),
    Sketcher.Constraint("Vertical", 0),
    Sketcher.Constraint("Horizontal", 1),
    Sketcher.Constraint("Vertical", 2),
    Sketcher.Constraint("Horizontal", 3),
    Sketcher.Constraint("Vertical", 4),
    Sketcher.Constraint("Horizontal", 5),
    Sketcher.Constraint("Vertical", 6),
    Sketcher.Constraint("Horizontal", 7),
    Sketcher.Constraint("Vertical", 8),
    Sketcher.Constraint("Horizontal", 9),
    Sketcher.Constraint("Vertical", 10),
    Sketcher.Constraint("Horizontal", 11),
    Sketcher.Constraint("Vertical", 12),
    Sketcher.Constraint("Horizontal", 13),
    Sketcher.Constraint("Vertical", 14),
    Sketcher.Constraint("Horizontal", 15),
    Sketcher.Constraint("Coincident", 4, 2, -1, 1),
    Sketcher.Constraint("PointOnObject", 0, 2, -2),
    Sketcher.Constraint("PointOnObject", 8, 2, -1),
    Sketcher.Constraint("Horizontal", 7, 2, 10, 2),
    Sketcher.Constraint("Horizontal", 3, 2, 14, 2),
    Sketcher.Constraint("Vertical", 11, 2, 12, 2),
    Sketcher.Constraint("Vertical", 10, 2, 13, 2),
    Sketcher.Constraint("DistanceY", -1, 1, 2, 2, Q("18 in")),
    Sketcher.Constraint("DistanceY", 12, 2, 12, 1, 30.44186),
    Sketcher.Constraint("DistanceX", 1, 1, 1, 2, 30.466625),
    Sketcher.Constraint("DistanceX", 5, 1, 5, 2, 32.839023),
    Sketcher.Constraint("DistanceX", 9, 1, 9, 2, 30.638695),
    Sketcher.Constraint("DistanceY", 0, 2, 0, 1, 31.133303),
    Sketcher.Constraint("DistanceY", 4, 2, 4, 1, 30.668437),
    Sketcher.Constraint("DistanceX", -1, 1, 8, 2, 1189.256549),
])
pad8 = body.newObject("PartDesign::Pad", "Pad007")
pad8.Profile = sketch8
pad8.Length = Q("12 in")

# Sketch on XY plane
sketch9 = body.newObject("Sketcher::SketchObject", "Sketch008")
sketch9.AttachmentSupport = (doc.getObject("XY_Plane"), [""])
sketch9.MapMode = "FlatFace"
sketch9.AttachmentOffset = App.Placement(Vector(0, 0, 52.8 * 25.4), App.Rotation())
sketch9.addGeometry([
    Part.LineSegment(Vector(0, 457, 0), Vector(0, 0, 0)),
    Part.LineSegment(Vector(0, 0, 0), Vector(1220, 0, 0)),
    Part.LineSegment(Vector(1220, 0, 0), Vector(1220, 457, 0)),
    Part.LineSegment(Vector(1220, 457, 0), Vector(0, 457, 0)),
], False)
sketch9.addConstraint([
    Sketcher.Constraint("Coincident", 0, 2, 1, 1),
    Sketcher.Constraint("Coincident", 1, 2, 2, 1),
    Sketcher.Constraint("Coincident", 2, 2, 3, 1),
    Sketcher.Constraint("Coincident", 3, 2, 0, 1),
    Sketcher.Constraint("Vertical", 0),
    Sketcher.Constraint("Horizontal", 1),
    Sketcher.Constraint("Vertical", 2),
    Sketcher.Constraint("Horizontal", 3),
    Sketcher.Constraint("Coincident", 0, 2, -1, 1),
    Sketcher.Constraint("DistanceY", 0, 2, 0, 1, Q("18 in")),
    Sketcher.Constraint("DistanceX", 1, 1, 1, 2, 1219.728589),
])
pad9 = body.newObject("PartDesign::Pad", "Pad008")
pad9.Profile = sketch9
pad9.Length = Q("1.2 in")

# Sketch on XY plane
sketch10 = body.newObject("Sketcher::SketchObject", "Sketch009")
sketch10.AttachmentSupport = (doc.getObject("XY_Plane"), [""])
sketch10.MapMode = "FlatFace"
sketch10.addGeometry([
    Part.LineSegment(Vector(0, 0, 0), Vector(0, 30, 0)),  # 0
    Part.LineSegment(Vector(0, 30, 0), Vector(30, 30, 0)),  # 1
    Part.LineSegment(Vector(30, 30, 0), Vector(30, 0, 0)),  # 2
    Part.LineSegment(Vector(30, 0, 0), Vector(0, 0, 0)),  # 3
    Part.LineSegment(Vector(0, 424, 0), Vector(0, 457, 0)),  # 4
    Part.LineSegment(Vector(0, 457, 0), Vector(30, 457, 0)),  # 5
    Part.LineSegment(Vector(30, 457, 0), Vector(30, 424, 0)),  # 6
    Part.LineSegment(Vector(30, 424, 0), Vector(0, 424, 0)),  # 7
    Part.LineSegment(Vector(1188, 423, 0), Vector(1188, 457, 0)),  # 8
    Part.LineSegment(Vector(1188, 457, 0), Vector(1219, 457, 0)),  # 9
    Part.LineSegment(Vector(1219, 457, 0), Vector(1219, 423, 0)),  # 10
    Part.LineSegment(Vector(1219, 423, 0), Vector(1188, 423, 0)),  # 11
    Part.LineSegment(Vector(1189, 0, 0), Vector(1189, 30, 0)),  # 12
    Part.LineSegment(Vector(1189, 30, 0), Vector(1219, 30, 0)),  # 13
    Part.LineSegment(Vector(1219, 30, 0), Vector(1219, 0, 0)),  # 14
    Part.LineSegment(Vector(1219, 0, 0), Vector(1189, 0, 0)),  # 15
], False)
sketch10.addConstraint([
    Sketcher.Constraint("Coincident", 0, 2, 1, 1),
    Sketcher.Constraint("Coincident", 1, 2, 2, 1),
    Sketcher.Constraint("Coincident", 2, 2, 3, 1),
    Sketcher.Constraint("Coincident", 3, 2, 0, 1),
    Sketcher.Constraint("Coincident", 4, 2, 5, 1),
    Sketcher.Constraint("Coincident", 5, 2, 6, 1),
    Sketcher.Constraint("Coincident", 6, 2, 7, 1),
    Sketcher.Constraint("Coincident", 7, 2, 4, 1),
    Sketcher.Constraint("Coincident", 8, 2, 9, 1),
    Sketcher.Constraint("Coincident", 9, 2, 10, 1),
    Sketcher.Constraint("Coincident", 10, 2, 11, 1),
    Sketcher.Constraint("Coincident", 11, 2, 8, 1),
    Sketcher.Constraint("Coincident", 12, 2, 13, 1),
    Sketcher.Constraint("Coincident", 13, 2, 14, 1),
    Sketcher.Constraint("Coincident", 14, 2, 15, 1),
    Sketcher.Constraint("Coincident", 15, 2, 12, 1),
    Sketcher.Constraint("Vertical", 0),
    Sketcher.Constraint("Horizontal", 1),
    Sketcher.Constraint("Vertical", 2),
    Sketcher.Constraint("Horizontal", 3),
    Sketcher.Constraint("Vertical", 4),
    Sketcher.Constraint("Horizontal", 5),
    Sketcher.Constraint("Vertical", 6),
    Sketcher.Constraint("Horizontal", 7),
    Sketcher.Constraint("Vertical", 8),
    Sketcher.Constraint("Horizontal", 9),
    Sketcher.Constraint("Vertical", 10),
    Sketcher.Constraint("Horizontal", 11),
    Sketcher.Constraint("Vertical", 12),
    Sketcher.Constraint("Horizontal", 13),
    Sketcher.Constraint("Vertical", 14),
    Sketcher.Constraint("Horizontal", 15),
    Sketcher.Constraint("Coincident", 3, 2, -1, 1),
    Sketcher.Constraint("PointOnObject", 4, 2, -2),
    Sketcher.Constraint("PointOnObject", 14, 2, -1),
    Sketcher.Constraint("Horizontal", 5, 2, 8, 2),
    Sketcher.Constraint("Horizontal", 1, 2, 12, 2),
    Sketcher.Constraint("Vertical", 2, 2, 5, 2),
    Sketcher.Constraint("Vertical", 10, 2, 13, 2),
    Sketcher.Constraint("DistanceY", -1, 1, 4, 2, Q("18 in")),
    Sketcher.Constraint("DistanceX", -1, 1, 9, 2, Q("48 in")),
    Sketcher.Constraint("DistanceX", 1, 1, 1, 2, 30.170821),
    Sketcher.Constraint("DistanceY", 0, 1, 0, 2, 29.71437),
    Sketcher.Constraint("DistanceY", 4, 1, 4, 2, 33.622691),
    Sketcher.Constraint("DistanceX", 9, 1, 9, 2, 31.298265),
    Sketcher.Constraint("DistanceX", 13, 1, 13, 2, 30.410752),
    Sketcher.Constraint("DistanceY", 8, 1, 8, 2, 33.891836),
])
pad10 = body.newObject("PartDesign::Pad", "Pad009")
pad10.Profile = sketch10
pad10.Length = Q("6 in")
pad10.Reversed = True

doc.recompute()
